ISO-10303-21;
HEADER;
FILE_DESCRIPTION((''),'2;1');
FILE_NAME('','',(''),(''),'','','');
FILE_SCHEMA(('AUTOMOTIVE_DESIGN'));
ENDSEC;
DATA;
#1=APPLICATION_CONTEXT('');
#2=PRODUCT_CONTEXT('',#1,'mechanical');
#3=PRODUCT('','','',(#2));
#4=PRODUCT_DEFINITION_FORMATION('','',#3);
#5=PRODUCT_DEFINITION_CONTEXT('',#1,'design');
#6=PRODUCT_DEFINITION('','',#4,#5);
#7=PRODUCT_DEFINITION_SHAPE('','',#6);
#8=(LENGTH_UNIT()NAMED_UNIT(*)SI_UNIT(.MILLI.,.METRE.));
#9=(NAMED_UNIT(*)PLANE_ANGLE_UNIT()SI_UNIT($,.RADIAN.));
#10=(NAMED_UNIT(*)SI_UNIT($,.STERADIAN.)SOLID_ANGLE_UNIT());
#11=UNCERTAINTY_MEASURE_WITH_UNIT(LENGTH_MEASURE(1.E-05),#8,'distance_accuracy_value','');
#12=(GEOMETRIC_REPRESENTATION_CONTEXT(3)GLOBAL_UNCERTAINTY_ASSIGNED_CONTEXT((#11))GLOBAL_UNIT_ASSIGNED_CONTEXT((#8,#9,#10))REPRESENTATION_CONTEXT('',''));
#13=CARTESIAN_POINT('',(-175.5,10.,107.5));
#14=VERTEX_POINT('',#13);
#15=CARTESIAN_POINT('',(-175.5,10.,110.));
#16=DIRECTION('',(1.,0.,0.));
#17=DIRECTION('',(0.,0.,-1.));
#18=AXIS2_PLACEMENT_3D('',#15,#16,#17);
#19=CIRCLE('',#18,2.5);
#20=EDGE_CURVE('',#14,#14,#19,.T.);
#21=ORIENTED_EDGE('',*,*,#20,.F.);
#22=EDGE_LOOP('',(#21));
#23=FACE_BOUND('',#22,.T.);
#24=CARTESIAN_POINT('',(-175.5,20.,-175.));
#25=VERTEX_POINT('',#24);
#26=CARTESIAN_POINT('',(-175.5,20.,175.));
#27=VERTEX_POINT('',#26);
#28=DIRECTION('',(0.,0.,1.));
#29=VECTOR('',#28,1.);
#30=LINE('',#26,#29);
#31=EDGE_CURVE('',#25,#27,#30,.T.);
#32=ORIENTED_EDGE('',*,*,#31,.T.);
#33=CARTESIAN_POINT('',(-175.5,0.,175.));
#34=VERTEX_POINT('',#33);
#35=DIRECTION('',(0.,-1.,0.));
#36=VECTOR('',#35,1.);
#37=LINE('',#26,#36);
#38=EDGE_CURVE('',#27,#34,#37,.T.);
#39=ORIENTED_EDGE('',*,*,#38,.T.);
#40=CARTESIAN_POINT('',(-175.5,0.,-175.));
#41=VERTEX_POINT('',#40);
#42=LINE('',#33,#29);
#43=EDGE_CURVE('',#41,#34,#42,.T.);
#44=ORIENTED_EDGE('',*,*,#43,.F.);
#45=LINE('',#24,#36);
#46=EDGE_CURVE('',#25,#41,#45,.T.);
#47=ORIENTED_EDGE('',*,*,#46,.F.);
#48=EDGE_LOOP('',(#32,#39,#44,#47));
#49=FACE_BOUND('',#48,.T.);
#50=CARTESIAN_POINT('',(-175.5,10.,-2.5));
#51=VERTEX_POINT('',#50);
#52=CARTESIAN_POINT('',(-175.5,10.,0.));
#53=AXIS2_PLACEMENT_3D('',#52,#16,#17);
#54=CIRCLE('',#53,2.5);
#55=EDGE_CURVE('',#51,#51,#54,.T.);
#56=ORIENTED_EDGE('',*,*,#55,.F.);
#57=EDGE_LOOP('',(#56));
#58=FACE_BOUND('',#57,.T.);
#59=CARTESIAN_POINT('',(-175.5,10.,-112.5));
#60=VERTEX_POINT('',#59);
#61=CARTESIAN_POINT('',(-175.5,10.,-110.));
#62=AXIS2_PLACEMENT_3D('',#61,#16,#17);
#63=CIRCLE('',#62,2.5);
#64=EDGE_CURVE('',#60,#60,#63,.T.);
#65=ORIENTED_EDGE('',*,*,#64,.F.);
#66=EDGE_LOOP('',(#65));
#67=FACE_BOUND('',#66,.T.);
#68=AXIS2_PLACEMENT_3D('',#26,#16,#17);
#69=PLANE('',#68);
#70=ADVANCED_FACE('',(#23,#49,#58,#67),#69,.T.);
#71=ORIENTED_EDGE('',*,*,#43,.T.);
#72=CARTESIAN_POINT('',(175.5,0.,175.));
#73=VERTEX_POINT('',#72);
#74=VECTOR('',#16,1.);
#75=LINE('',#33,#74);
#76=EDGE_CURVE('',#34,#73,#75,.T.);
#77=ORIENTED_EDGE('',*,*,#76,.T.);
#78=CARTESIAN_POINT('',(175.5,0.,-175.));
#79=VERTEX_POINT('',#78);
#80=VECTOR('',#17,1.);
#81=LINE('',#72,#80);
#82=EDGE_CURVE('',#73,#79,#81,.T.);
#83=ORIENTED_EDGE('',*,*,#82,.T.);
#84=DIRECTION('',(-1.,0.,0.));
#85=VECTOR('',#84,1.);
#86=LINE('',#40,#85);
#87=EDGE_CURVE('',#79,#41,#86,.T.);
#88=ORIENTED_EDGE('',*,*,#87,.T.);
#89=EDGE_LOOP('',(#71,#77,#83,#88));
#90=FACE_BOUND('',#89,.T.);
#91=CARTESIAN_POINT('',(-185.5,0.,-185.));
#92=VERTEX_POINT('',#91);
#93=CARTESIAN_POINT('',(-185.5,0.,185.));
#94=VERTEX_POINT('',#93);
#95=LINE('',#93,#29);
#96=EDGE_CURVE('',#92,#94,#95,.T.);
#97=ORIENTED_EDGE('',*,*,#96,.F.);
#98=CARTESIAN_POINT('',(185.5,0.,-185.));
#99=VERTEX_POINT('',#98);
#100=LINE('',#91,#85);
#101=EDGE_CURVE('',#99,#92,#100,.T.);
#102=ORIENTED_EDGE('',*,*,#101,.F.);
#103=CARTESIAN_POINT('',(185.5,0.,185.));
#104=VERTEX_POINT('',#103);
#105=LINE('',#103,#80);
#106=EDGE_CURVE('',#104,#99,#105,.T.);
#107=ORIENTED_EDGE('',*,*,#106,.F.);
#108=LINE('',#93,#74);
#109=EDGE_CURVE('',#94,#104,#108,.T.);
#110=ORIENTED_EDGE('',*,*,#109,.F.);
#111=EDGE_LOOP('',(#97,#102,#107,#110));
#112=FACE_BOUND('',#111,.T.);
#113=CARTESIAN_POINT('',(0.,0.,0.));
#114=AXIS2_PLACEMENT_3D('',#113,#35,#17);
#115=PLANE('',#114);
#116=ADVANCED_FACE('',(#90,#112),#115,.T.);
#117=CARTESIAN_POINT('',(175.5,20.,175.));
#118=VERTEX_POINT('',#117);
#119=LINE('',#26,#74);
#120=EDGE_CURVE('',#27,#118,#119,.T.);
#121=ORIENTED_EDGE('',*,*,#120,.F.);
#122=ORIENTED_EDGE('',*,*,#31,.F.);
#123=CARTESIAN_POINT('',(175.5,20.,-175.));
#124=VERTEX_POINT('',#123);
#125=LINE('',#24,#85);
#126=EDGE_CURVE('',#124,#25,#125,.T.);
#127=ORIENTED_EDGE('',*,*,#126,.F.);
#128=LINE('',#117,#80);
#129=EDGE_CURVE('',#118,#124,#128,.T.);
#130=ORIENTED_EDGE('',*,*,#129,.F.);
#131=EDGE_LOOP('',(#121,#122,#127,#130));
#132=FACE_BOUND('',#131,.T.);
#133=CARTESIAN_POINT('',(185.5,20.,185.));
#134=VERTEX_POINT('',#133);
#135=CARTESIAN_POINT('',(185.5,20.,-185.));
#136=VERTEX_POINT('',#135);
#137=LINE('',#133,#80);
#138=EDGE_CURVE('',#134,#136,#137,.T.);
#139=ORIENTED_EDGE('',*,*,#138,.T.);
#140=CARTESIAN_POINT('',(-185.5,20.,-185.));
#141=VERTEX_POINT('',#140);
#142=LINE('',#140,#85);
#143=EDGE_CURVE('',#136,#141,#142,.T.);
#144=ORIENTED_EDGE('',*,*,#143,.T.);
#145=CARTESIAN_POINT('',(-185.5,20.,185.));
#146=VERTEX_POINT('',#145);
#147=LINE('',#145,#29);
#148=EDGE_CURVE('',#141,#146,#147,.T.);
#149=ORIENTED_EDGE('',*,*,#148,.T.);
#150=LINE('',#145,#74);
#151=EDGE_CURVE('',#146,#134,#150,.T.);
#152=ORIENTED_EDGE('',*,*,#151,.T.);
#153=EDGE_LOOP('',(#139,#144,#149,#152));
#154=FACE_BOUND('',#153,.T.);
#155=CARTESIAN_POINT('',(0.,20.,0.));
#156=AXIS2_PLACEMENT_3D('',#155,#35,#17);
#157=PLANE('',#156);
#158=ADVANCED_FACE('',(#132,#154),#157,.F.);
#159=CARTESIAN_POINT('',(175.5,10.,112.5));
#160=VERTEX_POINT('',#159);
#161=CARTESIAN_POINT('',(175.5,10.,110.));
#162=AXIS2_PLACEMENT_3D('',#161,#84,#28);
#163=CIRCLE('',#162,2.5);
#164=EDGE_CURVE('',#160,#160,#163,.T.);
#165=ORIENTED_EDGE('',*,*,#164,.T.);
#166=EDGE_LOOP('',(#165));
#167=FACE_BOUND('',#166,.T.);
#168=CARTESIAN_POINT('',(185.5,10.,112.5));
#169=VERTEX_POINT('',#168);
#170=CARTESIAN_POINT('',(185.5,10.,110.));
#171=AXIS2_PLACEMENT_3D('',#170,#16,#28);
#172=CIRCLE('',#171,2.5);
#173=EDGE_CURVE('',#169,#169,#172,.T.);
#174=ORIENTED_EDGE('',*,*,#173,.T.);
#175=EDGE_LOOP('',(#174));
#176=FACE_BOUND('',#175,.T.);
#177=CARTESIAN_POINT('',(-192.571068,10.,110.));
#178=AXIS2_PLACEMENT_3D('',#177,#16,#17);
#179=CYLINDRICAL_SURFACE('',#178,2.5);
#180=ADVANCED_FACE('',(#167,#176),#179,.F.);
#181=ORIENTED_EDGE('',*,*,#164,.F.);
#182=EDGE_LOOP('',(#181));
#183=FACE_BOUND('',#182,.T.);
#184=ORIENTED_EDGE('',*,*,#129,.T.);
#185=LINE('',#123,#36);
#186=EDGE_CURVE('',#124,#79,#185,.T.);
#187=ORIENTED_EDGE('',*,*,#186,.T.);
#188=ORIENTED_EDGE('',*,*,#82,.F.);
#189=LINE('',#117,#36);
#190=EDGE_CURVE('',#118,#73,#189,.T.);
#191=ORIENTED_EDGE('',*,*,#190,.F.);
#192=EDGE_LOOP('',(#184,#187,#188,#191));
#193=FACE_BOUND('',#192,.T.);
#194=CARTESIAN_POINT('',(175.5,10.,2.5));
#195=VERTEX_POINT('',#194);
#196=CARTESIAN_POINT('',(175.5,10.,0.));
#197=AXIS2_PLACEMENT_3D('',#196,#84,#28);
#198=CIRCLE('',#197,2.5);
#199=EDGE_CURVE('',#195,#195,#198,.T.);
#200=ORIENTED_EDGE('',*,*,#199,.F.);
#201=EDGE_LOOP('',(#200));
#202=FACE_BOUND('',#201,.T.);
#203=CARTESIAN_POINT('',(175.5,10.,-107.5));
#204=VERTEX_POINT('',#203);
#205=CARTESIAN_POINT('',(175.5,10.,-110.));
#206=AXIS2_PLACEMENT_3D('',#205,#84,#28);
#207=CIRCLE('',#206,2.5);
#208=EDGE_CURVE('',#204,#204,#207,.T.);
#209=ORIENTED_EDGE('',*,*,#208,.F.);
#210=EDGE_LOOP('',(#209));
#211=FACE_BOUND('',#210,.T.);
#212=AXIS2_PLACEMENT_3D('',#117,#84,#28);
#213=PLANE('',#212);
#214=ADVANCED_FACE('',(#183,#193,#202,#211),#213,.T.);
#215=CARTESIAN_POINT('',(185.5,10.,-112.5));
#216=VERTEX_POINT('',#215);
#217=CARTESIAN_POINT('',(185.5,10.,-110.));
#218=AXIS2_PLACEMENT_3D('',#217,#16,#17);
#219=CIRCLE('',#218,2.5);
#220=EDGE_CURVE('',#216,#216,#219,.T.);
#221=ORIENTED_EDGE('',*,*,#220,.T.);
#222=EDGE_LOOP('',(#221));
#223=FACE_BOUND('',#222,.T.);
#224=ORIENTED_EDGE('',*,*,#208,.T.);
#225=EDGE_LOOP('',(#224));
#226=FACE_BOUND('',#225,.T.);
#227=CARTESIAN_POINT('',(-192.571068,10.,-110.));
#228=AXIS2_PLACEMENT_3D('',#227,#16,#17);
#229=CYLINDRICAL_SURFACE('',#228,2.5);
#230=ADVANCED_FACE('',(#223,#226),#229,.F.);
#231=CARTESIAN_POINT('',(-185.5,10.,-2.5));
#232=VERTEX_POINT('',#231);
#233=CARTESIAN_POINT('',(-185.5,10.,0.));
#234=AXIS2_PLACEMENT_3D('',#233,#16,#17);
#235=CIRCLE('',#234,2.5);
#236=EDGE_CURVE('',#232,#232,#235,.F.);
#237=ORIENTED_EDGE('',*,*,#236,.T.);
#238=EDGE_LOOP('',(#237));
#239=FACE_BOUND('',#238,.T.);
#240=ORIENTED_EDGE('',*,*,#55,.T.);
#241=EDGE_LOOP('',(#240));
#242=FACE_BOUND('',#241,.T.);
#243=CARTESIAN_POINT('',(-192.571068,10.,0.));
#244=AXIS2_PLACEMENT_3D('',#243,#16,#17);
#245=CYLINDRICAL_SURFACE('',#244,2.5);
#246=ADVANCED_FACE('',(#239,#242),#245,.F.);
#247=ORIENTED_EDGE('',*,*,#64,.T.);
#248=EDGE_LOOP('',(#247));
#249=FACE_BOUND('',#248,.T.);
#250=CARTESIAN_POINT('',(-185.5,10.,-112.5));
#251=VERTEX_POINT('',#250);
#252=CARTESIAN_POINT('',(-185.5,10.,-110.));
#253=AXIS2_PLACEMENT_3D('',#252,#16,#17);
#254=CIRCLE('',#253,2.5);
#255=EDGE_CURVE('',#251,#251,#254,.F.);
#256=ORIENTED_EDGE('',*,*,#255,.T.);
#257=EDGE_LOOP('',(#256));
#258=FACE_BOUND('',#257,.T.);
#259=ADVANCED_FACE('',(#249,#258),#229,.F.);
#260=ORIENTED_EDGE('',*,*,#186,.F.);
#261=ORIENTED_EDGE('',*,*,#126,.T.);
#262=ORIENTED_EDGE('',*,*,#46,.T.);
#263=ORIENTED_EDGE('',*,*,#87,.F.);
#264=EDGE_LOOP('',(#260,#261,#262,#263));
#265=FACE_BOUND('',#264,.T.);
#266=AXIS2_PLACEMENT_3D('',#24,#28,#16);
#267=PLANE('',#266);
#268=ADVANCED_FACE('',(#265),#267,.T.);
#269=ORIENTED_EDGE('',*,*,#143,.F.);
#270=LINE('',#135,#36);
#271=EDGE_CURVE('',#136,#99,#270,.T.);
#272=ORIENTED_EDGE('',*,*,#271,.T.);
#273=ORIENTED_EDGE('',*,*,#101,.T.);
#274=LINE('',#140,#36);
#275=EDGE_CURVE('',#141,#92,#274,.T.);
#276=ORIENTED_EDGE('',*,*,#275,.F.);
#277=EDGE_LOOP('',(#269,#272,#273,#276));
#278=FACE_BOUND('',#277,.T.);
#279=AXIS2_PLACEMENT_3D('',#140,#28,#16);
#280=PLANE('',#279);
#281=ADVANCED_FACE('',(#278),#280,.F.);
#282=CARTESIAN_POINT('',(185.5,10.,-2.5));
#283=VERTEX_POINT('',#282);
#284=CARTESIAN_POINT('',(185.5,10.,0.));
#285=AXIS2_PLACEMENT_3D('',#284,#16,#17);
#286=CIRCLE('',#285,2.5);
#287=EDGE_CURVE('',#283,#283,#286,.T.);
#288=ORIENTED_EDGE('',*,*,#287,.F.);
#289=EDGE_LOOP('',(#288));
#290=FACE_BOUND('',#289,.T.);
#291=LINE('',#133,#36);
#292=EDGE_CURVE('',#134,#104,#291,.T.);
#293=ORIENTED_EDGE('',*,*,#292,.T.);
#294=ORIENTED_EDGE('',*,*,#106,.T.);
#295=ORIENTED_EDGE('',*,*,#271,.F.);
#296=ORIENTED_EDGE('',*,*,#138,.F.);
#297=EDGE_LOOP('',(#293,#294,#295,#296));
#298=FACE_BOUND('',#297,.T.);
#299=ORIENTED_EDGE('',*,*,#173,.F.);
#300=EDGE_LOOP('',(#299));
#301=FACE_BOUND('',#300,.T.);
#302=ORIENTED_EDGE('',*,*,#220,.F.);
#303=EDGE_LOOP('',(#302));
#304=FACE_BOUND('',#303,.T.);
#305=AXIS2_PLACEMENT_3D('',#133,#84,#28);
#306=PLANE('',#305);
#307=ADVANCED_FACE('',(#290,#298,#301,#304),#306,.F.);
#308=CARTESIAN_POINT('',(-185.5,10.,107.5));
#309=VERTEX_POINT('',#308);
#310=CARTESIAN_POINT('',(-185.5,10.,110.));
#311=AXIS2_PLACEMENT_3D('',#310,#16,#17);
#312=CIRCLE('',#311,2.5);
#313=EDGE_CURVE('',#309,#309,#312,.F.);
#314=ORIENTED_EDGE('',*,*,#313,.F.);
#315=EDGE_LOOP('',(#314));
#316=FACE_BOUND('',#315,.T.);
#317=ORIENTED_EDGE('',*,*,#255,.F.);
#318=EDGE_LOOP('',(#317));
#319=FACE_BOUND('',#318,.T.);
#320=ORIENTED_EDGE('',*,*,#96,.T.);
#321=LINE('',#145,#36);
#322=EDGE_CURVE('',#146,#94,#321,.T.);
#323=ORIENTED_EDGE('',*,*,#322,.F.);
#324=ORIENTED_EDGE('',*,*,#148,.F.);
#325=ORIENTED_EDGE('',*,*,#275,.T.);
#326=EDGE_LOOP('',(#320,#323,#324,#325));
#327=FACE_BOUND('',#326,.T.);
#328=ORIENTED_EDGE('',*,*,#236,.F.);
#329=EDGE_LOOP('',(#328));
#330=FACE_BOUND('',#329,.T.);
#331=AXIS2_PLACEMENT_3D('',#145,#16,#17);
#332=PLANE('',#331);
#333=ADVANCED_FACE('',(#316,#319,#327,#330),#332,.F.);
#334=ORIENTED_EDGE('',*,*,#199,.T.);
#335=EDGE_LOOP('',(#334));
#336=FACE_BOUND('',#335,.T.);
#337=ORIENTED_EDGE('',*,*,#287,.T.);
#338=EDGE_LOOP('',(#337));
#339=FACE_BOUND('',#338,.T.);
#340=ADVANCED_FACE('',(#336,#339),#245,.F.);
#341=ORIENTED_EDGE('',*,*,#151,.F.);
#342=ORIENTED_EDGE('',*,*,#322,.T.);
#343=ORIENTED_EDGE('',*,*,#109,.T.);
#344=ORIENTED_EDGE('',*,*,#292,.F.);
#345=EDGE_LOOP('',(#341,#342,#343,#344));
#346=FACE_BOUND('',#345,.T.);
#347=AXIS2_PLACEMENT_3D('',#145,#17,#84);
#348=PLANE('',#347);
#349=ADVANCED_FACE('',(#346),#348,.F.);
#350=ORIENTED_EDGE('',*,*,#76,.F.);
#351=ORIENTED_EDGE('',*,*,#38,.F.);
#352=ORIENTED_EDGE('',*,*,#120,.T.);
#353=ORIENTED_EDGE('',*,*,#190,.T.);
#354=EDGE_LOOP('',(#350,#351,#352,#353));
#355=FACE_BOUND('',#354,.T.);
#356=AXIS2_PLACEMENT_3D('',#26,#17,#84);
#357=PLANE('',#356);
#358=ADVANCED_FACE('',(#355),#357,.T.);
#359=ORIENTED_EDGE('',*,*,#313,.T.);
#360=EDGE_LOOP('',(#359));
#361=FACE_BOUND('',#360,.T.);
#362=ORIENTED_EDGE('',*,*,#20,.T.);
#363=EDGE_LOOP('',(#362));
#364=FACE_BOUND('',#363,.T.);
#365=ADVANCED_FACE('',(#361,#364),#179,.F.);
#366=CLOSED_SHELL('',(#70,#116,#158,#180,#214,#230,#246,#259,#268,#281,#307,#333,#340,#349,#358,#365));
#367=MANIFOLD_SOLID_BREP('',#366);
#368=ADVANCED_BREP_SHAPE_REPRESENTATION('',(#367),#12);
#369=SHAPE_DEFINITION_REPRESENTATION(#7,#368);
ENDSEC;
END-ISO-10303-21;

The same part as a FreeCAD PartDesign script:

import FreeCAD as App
import Part
import Sketcher

doc = App.newDocument("Part")
body = doc.addObject("PartDesign::Body", "Body")

# Sketch on XZ plane
sketch1 = body.newObject("Sketcher::SketchObject", "Sketch")
sketch1.AttachmentSupport = (doc.getObject("XZ_Plane"), [""])
sketch1.MapMode = "FlatFace"
sketch1.addGeometry(Part.LineSegment(App.Vector(-185.5, -185, 0), App.Vector(-185.5, 185, 0)), False)
sketch1.addGeometry(Part.LineSegment(App.Vector(-185.5, 185, 0), App.Vector(185.5, 185, 0)), False)
sketch1.addGeometry(Part.LineSegment(App.Vector(185.5, 185, 0), App.Vector(185.5, -185, 0)), False)
sketch1.addGeometry(Part.LineSegment(App.Vector(185.5, -185, 0), App.Vector(-185.5, -185, 0)), False)
sketch1.addGeometry(Part.LineSegment(App.Vector(175.5, 175, 0), App.Vector(-175.5, 175, 0)), False)
sketch1.addGeometry(Part.LineSegment(App.Vector(-175.5, 175, 0), App.Vector(-175.5, -175, 0)), False)
sketch1.addGeometry(Part.LineSegment(App.Vector(-175.5, -175, 0), App.Vector(175.5, -175, 0)), False)
sketch1.addGeometry(Part.LineSegment(App.Vector(175.5, -175, 0), App.Vector(175.5, 175, 0)), False)
sketch1.addConstraint(Sketcher.Constraint("Coincident", 0, 2, 1, 1))
sketch1.addConstraint(Sketcher.Constraint("Coincident", 1, 2, 2, 1))
sketch1.addConstraint(Sketcher.Constraint("Coincident", 2, 2, 3, 1))
sketch1.addConstraint(Sketcher.Constraint("Coincident", 3, 2, 0, 1))
sketch1.addConstraint(Sketcher.Constraint("Coincident", 4, 2, 5, 1))
sketch1.addConstraint(Sketcher.Constraint("Coincident", 5, 2, 6, 1))
sketch1.addConstraint(Sketcher.Constraint("Coincident", 6, 2, 7, 1))
sketch1.addConstraint(Sketcher.Constraint("Coincident", 7, 2, 4, 1))
sketch1.addConstraint(Sketcher.Constraint("Vertical", 0))
sketch1.addConstraint(Sketcher.Constraint("Horizontal", 1))
sketch1.addConstraint(Sketcher.Constraint("Vertical", 2))
sketch1.addConstraint(Sketcher.Constraint("Horizontal", 3))
sketch1.addConstraint(Sketcher.Constraint("Horizontal", 4))
sketch1.addConstraint(Sketcher.Constraint("Vertical", 5))
sketch1.addConstraint(Sketcher.Constraint("Horizontal", 6))
sketch1.addConstraint(Sketcher.Constraint("Vertical", 7))
sketch1.addConstraint(Sketcher.Constraint("Symmetric", 0, 2, 2, 2, -1, 1))
sketch1.addConstraint(Sketcher.Constraint("Symmetric", 4, 2, 6, 2, -1, 1))
sketch1.addConstraint(Sketcher.Constraint("DistanceX", 1, 1, 1, 2, 371.0))
sketch1.addConstraint(Sketcher.Constraint("DistanceX", 4, 2, 4, 1, 351.0))
sketch1.addConstraint(Sketcher.Constraint("DistanceY", 0, 1, 0, 2, 370.0))
sketch1.addConstraint(Sketcher.Constraint("DistanceY", 5, 2, 5, 1, 350.0))
pad1 = body.newObject("PartDesign::Pad", "Pad")
pad1.Profile = sketch1
pad1.Length = 20
pad1.Reversed = True

# Sketch on YZ plane
sketch2 = body.newObject("Sketcher::SketchObject", "Sketch001")
sketch2.AttachmentSupport = (doc.getObject("YZ_Plane"), [""])
sketch2.MapMode = "FlatFace"
sketch2.AttachmentOffset = App.Placement(App.Vector(0, 0, 185.5), App.Rotation())
sketch2.addGeometry(Part.Circle(App.Vector(10, 0, 0), App.Vector(0, 0, 1), 2.5), False)
sketch2.addGeometry(Part.Circle(App.Vector(10, -110, 0), App.Vector(0, 0, 1), 2.5), False)
sketch2.addGeometry(Part.Circle(App.Vector(10, 110, 0), App.Vector(0, 0, 1), 2.5), False)
sketch2.addConstraint(Sketcher.Constraint("Equal", 0, 1))
sketch2.addConstraint(Sketcher.Constraint("Equal", 1, 2))
sketch2.addConstraint(Sketcher.Constraint("Symmetric", 1, 3, 2, 3, -1))
sketch2.addConstraint(Sketcher.Constraint("PointOnObject", 0, 3, -1))
sketch2.addConstraint(Sketcher.Constraint("Vertical", 0, 3, 1, 3))
sketch2.addConstraint(Sketcher.Constraint("Diameter", 0, 5.0))
sketch2.addConstraint(Sketcher.Constraint("DistanceX", -1, 1, 0, 3, 10.0))
sketch2.addConstraint(Sketcher.Constraint("DistanceY", 1, 3, -1, 1, 110.0))
pocket1 = body.newObject("PartDesign::Pocket", "Pocket")
pocket1.Profile = sketch2
pocket1.Length = 371

doc.recompute()
